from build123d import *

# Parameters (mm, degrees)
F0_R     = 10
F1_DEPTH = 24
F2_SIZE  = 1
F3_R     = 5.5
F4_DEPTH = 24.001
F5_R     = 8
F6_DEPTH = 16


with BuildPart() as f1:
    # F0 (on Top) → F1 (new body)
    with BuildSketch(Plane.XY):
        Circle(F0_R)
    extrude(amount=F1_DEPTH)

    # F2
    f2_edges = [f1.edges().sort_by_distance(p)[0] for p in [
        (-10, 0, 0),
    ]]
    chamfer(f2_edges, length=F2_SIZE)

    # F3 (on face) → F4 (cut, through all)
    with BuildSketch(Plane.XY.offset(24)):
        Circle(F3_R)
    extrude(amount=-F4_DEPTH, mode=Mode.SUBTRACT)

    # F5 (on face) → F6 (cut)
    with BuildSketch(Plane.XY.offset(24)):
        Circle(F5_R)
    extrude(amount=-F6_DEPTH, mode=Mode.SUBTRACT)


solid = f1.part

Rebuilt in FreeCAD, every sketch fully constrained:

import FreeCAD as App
import Part
import Sketcher
from FreeCAD import Vector
Q = App.Units.Quantity


def edges_at(feature, points):
    """Names of the edges that pass closest to the given points."""
    edges = feature.Shape.Edges
    near = lambda p: min(range(len(edges)), key=lambda i: edges[i].distToShape(Part.Vertex(*p))[0])
    return sorted({f"Edge{near(p) + 1}" for p in points})

doc = App.newDocument("Part")
body = doc.addObject("PartDesign::Body", "Body")

sketch1 = doc.addObject("Sketcher::SketchObject", "Sketch")
body.addObject(sketch1)
sketch1.AttachmentSupport = (doc.XY_Plane, [""])
sketch1.MapMode = "FlatFace"
sketch1.addGeometry(Part.Circle(Vector(0, 0, 0), Vector(0, 0, 1), 10), False)
sketch1.addConstraint(Sketcher.Constraint("Coincident", 0, 3, -1, 1))
sketch1.addConstraint(Sketcher.Constraint("Diameter", 0, Q("20 mm")))
pad1 = doc.addObject("PartDesign::Pad", "Pad")
body.addObject(pad1)
pad1.Profile = sketch1
pad1.Length = 24
doc.recompute()

chamfer = doc.addObject("PartDesign::Chamfer", "Chamfer")
body.addObject(chamfer)
chamfer.Base = (pad1, edges_at(pad1, [(-10, 0, 0)]))
chamfer.Size = 1

sketch2 = doc.addObject("Sketcher::SketchObject", "Sketch001")
body.addObject(sketch2)
sketch2.AttachmentSupport = (doc.XY_Plane, [""])
sketch2.MapMode = "FlatFace"
sketch2.AttachmentOffset = App.Placement(Vector(0, 0, 24), App.Rotation())
sketch2.addGeometry(Part.Circle(Vector(0, 0, 0), Vector(0, 0, 1), 5.5), False)
sketch2.addConstraint(Sketcher.Constraint("Coincident", 0, 3, -1, 1))
sketch2.addConstraint(Sketcher.Constraint("Diameter", 0, Q("11 mm")))
pocket1 = doc.addObject("PartDesign::Pocket", "Pocket")
body.addObject(pocket1)
pocket1.Profile = sketch2
pocket1.Type = "ThroughAll"

sketch3 = doc.addObject("Sketcher::SketchObject", "Sketch002")
body.addObject(sketch3)
sketch3.AttachmentSupport = (doc.XY_Plane, [""])
sketch3.MapMode = "FlatFace"
sketch3.AttachmentOffset = App.Placement(Vector(0, 0, 24), App.Rotation())
sketch3.addGeometry(Part.Circle(Vector(0, 0, 0), Vector(0, 0, 1), 8), False)
sketch3.addConstraint(Sketcher.Constraint("Coincident", 0, 3, -1, 1))
sketch3.addConstraint(Sketcher.Constraint("Diameter", 0, Q("16 mm")))
pocket2 = doc.addObject("PartDesign::Pocket", "Pocket001")
body.addObject(pocket2)
pocket2.Profile = sketch3
pocket2.Length = 16

doc.recompute()
